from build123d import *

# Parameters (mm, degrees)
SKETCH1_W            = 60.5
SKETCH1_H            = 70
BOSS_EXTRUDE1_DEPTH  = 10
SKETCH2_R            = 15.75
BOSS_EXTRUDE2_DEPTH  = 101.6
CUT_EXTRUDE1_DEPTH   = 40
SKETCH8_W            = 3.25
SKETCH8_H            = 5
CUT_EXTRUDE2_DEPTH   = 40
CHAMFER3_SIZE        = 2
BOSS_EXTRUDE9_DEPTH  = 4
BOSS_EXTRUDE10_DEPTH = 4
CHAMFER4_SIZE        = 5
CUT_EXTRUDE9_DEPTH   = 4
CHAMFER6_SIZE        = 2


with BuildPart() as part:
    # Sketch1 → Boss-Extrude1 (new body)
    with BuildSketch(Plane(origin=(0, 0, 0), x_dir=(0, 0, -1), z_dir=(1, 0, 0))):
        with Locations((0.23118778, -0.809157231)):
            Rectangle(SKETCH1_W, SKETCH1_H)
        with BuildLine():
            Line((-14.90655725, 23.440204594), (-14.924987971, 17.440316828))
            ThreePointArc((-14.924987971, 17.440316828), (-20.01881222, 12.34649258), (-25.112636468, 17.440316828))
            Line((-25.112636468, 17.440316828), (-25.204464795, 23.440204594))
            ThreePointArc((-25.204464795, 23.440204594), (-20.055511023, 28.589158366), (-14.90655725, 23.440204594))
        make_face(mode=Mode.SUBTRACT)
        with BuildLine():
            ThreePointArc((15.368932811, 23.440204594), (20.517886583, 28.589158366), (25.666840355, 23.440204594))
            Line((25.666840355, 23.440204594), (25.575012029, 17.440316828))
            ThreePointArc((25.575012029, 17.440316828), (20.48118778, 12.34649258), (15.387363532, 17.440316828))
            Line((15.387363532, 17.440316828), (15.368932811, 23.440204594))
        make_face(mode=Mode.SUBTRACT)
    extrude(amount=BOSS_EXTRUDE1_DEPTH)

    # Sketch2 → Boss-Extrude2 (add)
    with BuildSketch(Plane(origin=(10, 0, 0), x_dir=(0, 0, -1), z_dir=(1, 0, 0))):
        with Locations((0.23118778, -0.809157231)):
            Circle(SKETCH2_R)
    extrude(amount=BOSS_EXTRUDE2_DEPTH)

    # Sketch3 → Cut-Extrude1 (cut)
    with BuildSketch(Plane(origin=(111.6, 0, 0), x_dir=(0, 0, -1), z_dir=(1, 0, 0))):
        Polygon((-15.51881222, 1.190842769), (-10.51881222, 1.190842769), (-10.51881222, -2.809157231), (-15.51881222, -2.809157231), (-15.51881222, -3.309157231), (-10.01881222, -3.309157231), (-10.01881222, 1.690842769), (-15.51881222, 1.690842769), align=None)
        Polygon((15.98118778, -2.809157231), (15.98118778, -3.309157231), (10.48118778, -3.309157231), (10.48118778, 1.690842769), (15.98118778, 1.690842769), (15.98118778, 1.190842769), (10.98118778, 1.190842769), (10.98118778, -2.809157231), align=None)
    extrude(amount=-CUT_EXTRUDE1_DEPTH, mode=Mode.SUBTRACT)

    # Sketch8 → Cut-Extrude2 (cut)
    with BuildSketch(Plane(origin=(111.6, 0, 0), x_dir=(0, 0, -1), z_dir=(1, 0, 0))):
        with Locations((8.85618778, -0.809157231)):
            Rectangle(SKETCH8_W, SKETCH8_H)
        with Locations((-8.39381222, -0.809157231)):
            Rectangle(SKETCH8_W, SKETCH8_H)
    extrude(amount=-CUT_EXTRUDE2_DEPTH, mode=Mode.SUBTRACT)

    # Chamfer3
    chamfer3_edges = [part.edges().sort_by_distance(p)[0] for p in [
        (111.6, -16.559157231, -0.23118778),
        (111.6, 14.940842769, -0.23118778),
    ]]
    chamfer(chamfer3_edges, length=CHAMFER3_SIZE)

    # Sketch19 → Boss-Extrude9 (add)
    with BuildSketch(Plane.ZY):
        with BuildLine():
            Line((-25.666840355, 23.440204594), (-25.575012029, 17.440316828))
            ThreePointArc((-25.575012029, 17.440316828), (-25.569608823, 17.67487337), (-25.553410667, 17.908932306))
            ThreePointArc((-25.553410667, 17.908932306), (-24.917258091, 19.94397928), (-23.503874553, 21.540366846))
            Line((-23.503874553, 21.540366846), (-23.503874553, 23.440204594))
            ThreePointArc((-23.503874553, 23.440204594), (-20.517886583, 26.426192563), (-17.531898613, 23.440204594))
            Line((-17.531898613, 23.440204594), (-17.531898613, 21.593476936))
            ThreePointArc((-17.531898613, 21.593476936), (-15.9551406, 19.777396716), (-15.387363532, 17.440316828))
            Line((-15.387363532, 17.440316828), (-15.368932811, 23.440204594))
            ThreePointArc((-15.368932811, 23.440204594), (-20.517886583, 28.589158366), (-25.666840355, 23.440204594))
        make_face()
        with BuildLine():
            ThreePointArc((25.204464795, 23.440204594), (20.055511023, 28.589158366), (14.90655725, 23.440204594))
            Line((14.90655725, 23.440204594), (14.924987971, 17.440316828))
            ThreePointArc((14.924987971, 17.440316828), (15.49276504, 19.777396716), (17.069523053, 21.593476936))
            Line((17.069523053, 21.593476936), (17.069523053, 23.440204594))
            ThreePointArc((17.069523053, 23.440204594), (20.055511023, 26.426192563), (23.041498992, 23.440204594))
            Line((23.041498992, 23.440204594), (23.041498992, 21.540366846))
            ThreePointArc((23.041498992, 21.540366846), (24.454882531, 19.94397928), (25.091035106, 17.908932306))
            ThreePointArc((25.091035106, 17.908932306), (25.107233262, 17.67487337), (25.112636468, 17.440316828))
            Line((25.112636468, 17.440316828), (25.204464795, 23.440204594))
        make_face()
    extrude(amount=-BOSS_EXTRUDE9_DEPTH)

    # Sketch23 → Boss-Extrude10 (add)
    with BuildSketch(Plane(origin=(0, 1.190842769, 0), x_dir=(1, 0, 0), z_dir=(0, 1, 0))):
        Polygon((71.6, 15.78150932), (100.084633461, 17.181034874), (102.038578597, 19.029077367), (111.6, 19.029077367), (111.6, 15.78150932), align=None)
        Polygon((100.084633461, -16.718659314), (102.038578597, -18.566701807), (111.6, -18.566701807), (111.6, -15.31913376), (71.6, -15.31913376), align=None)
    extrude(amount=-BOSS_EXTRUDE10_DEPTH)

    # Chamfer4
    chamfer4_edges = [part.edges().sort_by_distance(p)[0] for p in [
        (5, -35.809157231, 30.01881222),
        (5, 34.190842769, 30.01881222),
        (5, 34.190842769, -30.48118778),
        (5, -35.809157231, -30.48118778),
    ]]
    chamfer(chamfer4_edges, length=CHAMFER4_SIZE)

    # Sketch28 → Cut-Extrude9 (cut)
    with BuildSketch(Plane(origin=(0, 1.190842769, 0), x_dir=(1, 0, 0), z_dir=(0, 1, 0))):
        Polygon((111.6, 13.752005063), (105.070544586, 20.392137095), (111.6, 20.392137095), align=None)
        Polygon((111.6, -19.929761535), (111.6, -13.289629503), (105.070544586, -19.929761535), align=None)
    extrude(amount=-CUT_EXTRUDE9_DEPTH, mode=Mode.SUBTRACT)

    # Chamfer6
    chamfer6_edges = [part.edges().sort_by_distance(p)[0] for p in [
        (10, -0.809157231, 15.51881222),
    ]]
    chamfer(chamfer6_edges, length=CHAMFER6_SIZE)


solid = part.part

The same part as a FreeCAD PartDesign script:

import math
import FreeCAD as App
import Part
import Sketcher

V = App.Vector
Q = App.Units.Quantity


def edges_at(feature, points):
    """Names of the edges that pass closest to the given points."""
    edges = feature.Shape.Edges
    near = lambda p: min(range(len(edges)), key=lambda i: edges[i].distToShape(Part.Vertex(*p))[0])
    return sorted({f"Edge{near(p) + 1}" for p in points})

doc = App.newDocument("Part")
body = doc.addObject("PartDesign::Body", "Body")

sketch1 = body.newObject("Sketcher::SketchObject", "Sketch")
sketch1.AttachmentSupport = (doc.getObject("YZ_Plane"), [""])
sketch1.MapMode = "FlatFace"
sketch1.addGeometry(Part.LineSegment(V(34.190843, 30.018812, 0), V(-35.809157, 30.018812, 0)), False)
sketch1.addGeometry(Part.LineSegment(V(-35.809157, 30.018812, 0), V(-35.809157, -30.481188, 0)), False)
sketch1.addGeometry(Part.LineSegment(V(-35.809157, -30.481188, 0), V(34.190843, -30.481188, 0)), False)
sketch1.addGeometry(Part.LineSegment(V(34.190843, -30.481188, 0), V(34.190843, 30.018812, 0)), False)
sketch1.addGeometry(Part.ArcOfCircle(Part.Circle(V(23.440205, 20.055511, 0), V(0, 0, 1), 5.148954), math.radians(-90), math.radians(90)), False)
sketch1.addGeometry(Part.LineSegment(V(23.440205, 14.906557, 0), V(17.440317, 14.924988, 0)), False)
sketch1.addGeometry(Part.ArcOfCircle(Part.Circle(V(17.440317, 20.018812, 0), V(0, 0, 1), 5.093824), math.radians(90), math.radians(270)), False)
sketch1.addGeometry(Part.LineSegment(V(17.440317, 25.112636, 0), V(23.440205, 25.204465, 0)), False)
sketch1.addGeometry(Part.LineSegment(V(17.440317, -15.387364, 0), V(23.440205, -15.368933, 0)), False)
sketch1.addGeometry(Part.ArcOfCircle(Part.Circle(V(23.440205, -20.517887, 0), V(0, 0, 1), 5.148954), math.radians(-90), math.radians(90)), False)
sketch1.addGeometry(Part.LineSegment(V(23.440205, -25.66684, 0), V(17.440317, -25.575012, 0)), False)
sketch1.addGeometry(Part.ArcOfCircle(Part.Circle(V(17.440317, -20.481188, 0), V(0, 0, 1), 5.093824), math.radians(90), math.radians(270)), False)
sketch1.addConstraint(Sketcher.Constraint("Coincident", 0, 2, 1, 1))
sketch1.addConstraint(Sketcher.Constraint("Coincident", 1, 2, 2, 1))
sketch1.addConstraint(Sketcher.Constraint("Coincident", 2, 2, 3, 1))
sketch1.addConstraint(Sketcher.Constraint("Coincident", 3, 2, 0, 1))
sketch1.addConstraint(Sketcher.Constraint("Coincident", 4, 1, 5, 1))
sketch1.addConstraint(Sketcher.Constraint("Coincident", 5, 2, 6, 2))
sketch1.addConstraint(Sketcher.Constraint("Coincident", 6, 1, 7, 1))
sketch1.addConstraint(Sketcher.Constraint("Coincident", 7, 2, 4, 2))
sketch1.addConstraint(Sketcher.Constraint("Coincident", 8, 2, 9, 2))
sketch1.addConstraint(Sketcher.Constraint("Coincident", 9, 1, 10, 1))
sketch1.addConstraint(Sketcher.Constraint("Coincident", 10, 2, 11, 2))
sketch1.addConstraint(Sketcher.Constraint("Coincident", 11, 1, 8, 1))
sketch1.addConstraint(Sketcher.Constraint("Horizontal", 0))
sketch1.addConstraint(Sketcher.Constraint("Vertical", 1))
sketch1.addConstraint(Sketcher.Constraint("Horizontal", 2))
sketch1.addConstraint(Sketcher.Constraint("Vertical", 3))
sketch1.addConstraint(Sketcher.Constraint("Equal", 4, 9))
sketch1.addConstraint(Sketcher.Constraint("Equal", 6, 11))
sketch1.addConstraint(Sketcher.Constraint("Vertical", 4, 3, 9, 3))
sketch1.addConstraint(Sketcher.Constraint("Vertical", 6, 3, 11, 3))
sketch1.addConstraint(Sketcher.Constraint("Vertical", 9, 3, 4, 1))
sketch1.addConstraint(Sketcher.Constraint("Vertical", 11, 3, 5, 2))
sketch1.addConstraint(Sketcher.Constraint("Vertical", 5, 2, 6, 1))
sketch1.addConstraint(Sketcher.Constraint("Vertical", 4, 1, 7, 2))
sketch1.addConstraint(Sketcher.Constraint("Vertical", 7, 2, 8, 2))
sketch1.addConstraint(Sketcher.Constraint("Vertical", 8, 2, 9, 1))
sketch1.addConstraint(Sketcher.Constraint("Vertical", 6, 1, 10, 2))
sketch1.addConstraint(Sketcher.Constraint("Vertical", 10, 2, 11, 1))
sketch1.addConstraint(Sketcher.Constraint("Equal", 7, 10))
sketch1.addConstraint(Sketcher.Constraint("DistanceX", 0, 2, 0, 1, Q("70 mm")))
sketch1.addConstraint(Sketcher.Constraint("DistanceY", 1, 2, 1, 1, Q("60.5 mm")))
sketch1.addConstraint(Sketcher.Constraint("DistanceY", 6, 3, 0, 2, Q("10 mm")))
sketch1.addConstraint(Sketcher.Constraint("DistanceY", 1, 2, 11, 3, Q("10 mm")))
sketch1.addConstraint(Sketcher.Constraint("Radius", 4, Q("5.148954 mm")))
sketch1.addConstraint(Sketcher.Constraint("Radius", 6, Q("5.093824 mm")))
sketch1.addConstraint(Sketcher.Constraint("DistanceY", 6, 3, 4, 3, Q("0.036699 mm")))
sketch1.addConstraint(Sketcher.Constraint("Distance", 7, Q("6.00059 mm")))
sketch1.addConstraint(Sketcher.Constraint("DistanceY", -1, 1, 4, 3, Q("20.055511 mm")))
sketch1.addConstraint(Sketcher.Constraint("DistanceX", 0, 2, 4, 3, Q("59.249362 mm")))
sketch1.addConstraint(Sketcher.Constraint("DistanceX", -1, 1, 4, 3, Q("23.440205 mm")))
pad1 = body.newObject("PartDesign::Pad", "Pad")
pad1.Profile = sketch1
pad1.Length = 10

sketch2 = body.newObject("Sketcher::SketchObject", "Sketch001")
sketch2.AttachmentSupport = (doc.getObject("YZ_Plane"), [""])
sketch2.MapMode = "FlatFace"
sketch2.AttachmentOffset = App.Placement(V(0, 0, 10), App.Rotation())
sketch2.addGeometry(Part.Circle(V(-0.809157, -0.231188, 0), V(0, 0, 1), 15.75), False)
sketch2.addConstraint(Sketcher.Constraint("Diameter", 0, Q("31.5 mm")))
sketch2.addConstraint(Sketcher.Constraint("DistanceX", 0, 3, -1, 1, Q("0.809157 mm")))
sketch2.addConstraint(Sketcher.Constraint("DistanceY", 0, 3, -1, 1, Q("0.231188 mm")))
pad2 = body.newObject("PartDesign::Pad", "Pad001")
pad2.Profile = sketch2
pad2.Length = 101.6

sketch3 = body.newObject("Sketcher::SketchObject", "Sketch002")
sketch3.AttachmentSupport = (doc.getObject("YZ_Plane"), [""])
sketch3.MapMode = "FlatFace"
sketch3.AttachmentOffset = App.Placement(V(0, 0, 111.6), App.Rotation())
sketch3.addGeometry(Part.LineSegment(V(1.190843, 15.518812, 0), V(1.190843, 10.518812, 0)), False)
sketch3.addGeometry(Part.LineSegment(V(1.190843, 10.518812, 0), V(-2.809157, 10.518812, 0)), False)
sketch3.addGeometry(Part.LineSegment(V(-2.809157, 10.518812, 0), V(-2.809157, 15.518812, 0)), False)
sketch3.addGeometry(Part.LineSegment(V(-2.809157, 15.518812, 0), V(-3.309157, 15.518812, 0)), False)
sketch3.addGeometry(Part.LineSegment(V(-3.309157, 15.518812, 0), V(-3.309157, 10.018812, 0)), False)
sketch3.addGeometry(Part.LineSegment(V(-3.309157, 10.018812, 0), V(1.690843, 10.018812, 0)), False)
sketch3.addGeometry(Part.LineSegment(V(1.690843, 10.018812, 0), V(1.690843, 15.518812, 0)), False)
sketch3.addGeometry(Part.LineSegment(V(1.690843, 15.518812, 0), V(1.190843, 15.518812, 0)), False)
sketch3.addGeometry(Part.LineSegment(V(-3.309157, -15.981188, 0), V(-2.809157, -15.981188, 0)), False)
sketch3.addGeometry(Part.LineSegment(V(-2.809157, -15.981188, 0), V(-2.809157, -10.981188, 0)), False)
sketch3.addGeometry(Part.LineSegment(V(-2.809157, -10.981188, 0), V(1.190843, -10.981188, 0)), False)
sketch3.addGeometry(Part.LineSegment(V(1.190843, -10.981188, 0), V(1.190843, -15.981188, 0)), False)
sketch3.addGeometry(Part.LineSegment(V(1.190843, -15.981188, 0), V(1.690843, -15.981188, 0)), False)
sketch3.addGeometry(Part.LineSegment(V(1.690843, -15.981188, 0), V(1.690843, -10.481188, 0)), False)
sketch3.addGeometry(Part.LineSegment(V(1.690843, -10.481188, 0), V(-3.309157, -10.481188, 0)), False)
sketch3.addGeometry(Part.LineSegment(V(-3.309157, -10.481188, 0), V(-3.309157, -15.981188, 0)), False)
sketch3.addConstraint(Sketcher.Constraint("Coincident", 0, 2, 1, 1))
sketch3.addConstraint(Sketcher.Constraint("Coincident", 1, 2, 2, 1))
sketch3.addConstraint(Sketcher.Constraint("Coincident", 2, 2, 3, 1))
sketch3.addConstraint(Sketcher.Constraint("Coincident", 3, 2, 4, 1))
sketch3.addConstraint(Sketcher.Constraint("Coincident", 4, 2, 5, 1))
sketch3.addConstraint(Sketcher.Constraint("Coincident", 5, 2, 6, 1))
sketch3.addConstraint(Sketcher.Constraint("Coincident", 6, 2, 7, 1))
sketch3.addConstraint(Sketcher.Constraint("Coincident", 7, 2, 0, 1))
sketch3.addConstraint(Sketcher.Constraint("Coincident", 8, 2, 9, 1))
sketch3.addConstraint(Sketcher.Constraint("Coincident", 9, 2, 10, 1))
sketch3.addConstraint(Sketcher.Constraint("Coincident", 10, 2, 11, 1))
sketch3.addConstraint(Sketcher.Constraint("Coincident", 11, 2, 12, 1))
sketch3.addConstraint(Sketcher.Constraint("Coincident", 12, 2, 13, 1))
sketch3.addConstraint(Sketcher.Constraint("Coincident", 13, 2, 14, 1))
sketch3.addConstraint(Sketcher.Constraint("Coincident", 14, 2, 15, 1))
sketch3.addConstraint(Sketcher.Constraint("Coincident", 15, 2, 8, 1))
sketch3.addConstraint(Sketcher.Constraint("Vertical", 0))
sketch3.addConstraint(Sketcher.Constraint("Horizontal", 1))
sketch3.addConstraint(Sketcher.Constraint("Vertical", 2))
sketch3.addConstraint(Sketcher.Constraint("Horizontal", 3))
sketch3.addConstraint(Sketcher.Constraint("Vertical", 4))
sketch3.addConstraint(Sketcher.Constraint("Horizontal", 5))
sketch3.addConstraint(Sketcher.Constraint("Vertical", 6))
sketch3.addConstraint(Sketcher.Constraint("Horizontal", 7))
sketch3.addConstraint(Sketcher.Constraint("Horizontal", 8))
sketch3.addConstraint(Sketcher.Constraint("Vertical", 9))
sketch3.addConstraint(Sketcher.Constraint("Horizontal", 10))
sketch3.addConstraint(Sketcher.Constraint("Vertical", 11))
sketch3.addConstraint(Sketcher.Constraint("Horizontal", 12))
sketch3.addConstraint(Sketcher.Constraint("Vertical", 13))
sketch3.addConstraint(Sketcher.Constraint("Horizontal", 14))
sketch3.addConstraint(Sketcher.Constraint("Vertical", 15))
sketch3.addConstraint(Sketcher.Constraint("Horizontal", 3, 2, 6, 2))
sketch3.addConstraint(Sketcher.Constraint("Horizontal", 8, 2, 11, 2))
sketch3.addConstraint(Sketcher.Constraint("Vertical", 2, 2, 8, 2))
sketch3.addConstraint(Sketcher.Constraint("Vertical", 7, 2, 10, 2))
sketch3.addConstraint(Sketcher.Constraint("Vertical", 6, 2, 12, 2))
sketch3.addConstraint(Sketcher.Constraint("Vertical", 4, 2, 14, 2))
sketch3.addConstraint(Sketcher.Constraint("Equal", 3, 7))
sketch3.addConstraint(Sketcher.Constraint("Equal", 14, 0))
sketch3.addConstraint(Sketcher.Constraint("Equal", 2, 9))
sketch3.addConstraint(Sketcher.Constraint("Equal", 6, 13))
sketch3.addConstraint(Sketcher.Constraint("DistanceX", 1, 2, 1, 1, Q("4 mm")))
sketch3.addConstraint(Sketcher.Constraint("DistanceX", 5, 1, 5, 2, Q("5 mm")))
sketch3.addConstraint(Sketcher.Constraint("DistanceY", 4, 2, 4, 1, Q("5.5 mm")))
sketch3.addConstraint(Sketcher.Constraint("DistanceY", 8, 2, 4, 2, Q("26 mm")))
sketch3.addConstraint(Sketcher.Constraint("DistanceX", -1, 1, 0, 2, Q("1.190843 mm")))
sketch3.addConstraint(Sketcher.Constraint("DistanceY", -1, 1, 0, 2, Q("10.518812 mm")))
pocket1 = body.newObject("PartDesign::Pocket", "Pocket")
pocket1.Profile = sketch3
pocket1.Length = 40

sketch4 = body.newObject("Sketcher::SketchObject", "Sketch003")
sketch4.AttachmentSupport = (doc.getObject("YZ_Plane"), [""])
sketch4.MapMode = "FlatFace"
sketch4.AttachmentOffset = App.Placement(V(0, 0, 111.6), App.Rotation())
sketch4.addGeometry(Part.LineSegment(V(1.690843, -7.231188, 0), V(-3.309157, -7.231188, 0)), False)
sketch4.addGeometry(Part.LineSegment(V(-3.309157, -7.231188, 0), V(-3.309157, -10.481188, 0)), False)
sketch4.addGeometry(Part.LineSegment(V(-3.309157, -10.481188, 0), V(1.690843, -10.481188, 0)), False)
sketch4.addGeometry(Part.LineSegment(V(1.690843, -10.481188, 0), V(1.690843, -7.231188, 0)), False)
sketch4.addGeometry(Part.LineSegment(V(1.690843, 10.018812, 0), V(-3.309157, 10.018812, 0)), False)
sketch4.addGeometry(Part.LineSegment(V(-3.309157, 10.018812, 0), V(-3.309157, 6.768812, 0)), False)
sketch4.addGeometry(Part.LineSegment(V(-3.309157, 6.768812, 0), V(1.690843, 6.768812, 0)), False)
sketch4.addGeometry(Part.LineSegment(V(1.690843, 6.768812, 0), V(1.690843, 10.018812, 0)), False)
sketch4.addConstraint(Sketcher.Constraint("Coincident", 0, 2, 1, 1))
sketch4.addConstraint(Sketcher.Constraint("Coincident", 1, 2, 2, 1))
sketch4.addConstraint(Sketcher.Constraint("Coincident", 2, 2, 3, 1))
sketch4.addConstraint(Sketcher.Constraint("Coincident", 3, 2, 0, 1))
sketch4.addConstraint(Sketcher.Constraint("Coincident", 4, 2, 5, 1))
sketch4.addConstraint(Sketcher.Constraint("Coincident", 5, 2, 6, 1))
sketch4.addConstraint(Sketcher.Constraint("Coincident", 6, 2, 7, 1))
sketch4.addConstraint(Sketcher.Constraint("Coincident", 7, 2, 4, 1))
sketch4.addConstraint(Sketcher.Constraint("Horizontal", 0))
sketch4.addConstraint(Sketcher.Constraint("Vertical", 1))
sketch4.addConstraint(Sketcher.Constraint("Horizontal", 2))
sketch4.addConstraint(Sketcher.Constraint("Vertical", 3))
sketch4.addConstraint(Sketcher.Constraint("Horizontal", 4))
sketch4.addConstraint(Sketcher.Constraint("Vertical", 5))
sketch4.addConstraint(Sketcher.Constraint("Horizontal", 6))
sketch4.addConstraint(Sketcher.Constraint("Vertical", 7))
sketch4.addConstraint(Sketcher.Constraint("Vertical", 1, 2, 4, 2))
sketch4.addConstraint(Sketcher.Constraint("Vertical", 3, 2, 6, 2))
sketch4.addConstraint(Sketcher.Constraint("Equal", 3, 5))
sketch4.addConstraint(Sketcher.Constraint("DistanceX", 0, 2, 0, 1, Q("5 mm")))
sketch4.addConstraint(Sketcher.Constraint("DistanceY", 0, 2, 5, 2, Q("14 mm")))
sketch4.addConstraint(Sketcher.Constraint("DistanceY", 1, 2, 1, 1, Q("3.25 mm")))
sketch4.addConstraint(Sketcher.Constraint("DistanceX", 0, 2, -1, 1, Q("3.309157 mm")))
sketch4.addConstraint(Sketcher.Constraint("DistanceY", 0, 2, -1, 1, Q("7.231188 mm")))
pocket2 = body.newObject("PartDesign::Pocket", "Pocket001")
pocket2.Profile = sketch4
pocket2.Length = 40
doc.recompute()

chamfer = body.newObject("PartDesign::Chamfer", "Chamfer")
chamfer.Base = (pocket2, edges_at(pocket2, [(111.6, -16.559, -0.231), (111.6, 14.941, -0.231)]))
chamfer.Size = 2

sketch5 = body.newObject("Sketcher::SketchObject", "Sketch004")
sketch5.AttachmentSupport = (doc.getObject("YZ_Plane"), [""])
sketch5.MapMode = "FlatFace"
sketch5.addGeometry(Part.LineSegment(V(23.440205, -25.66684, 0), V(17.440317, -25.575012, 0)), False)
sketch5.addGeometry(Part.ArcOfCircle(Part.Circle(V(17.440317, -20.481188, 0), V(0, 0, 1), 5.093824), math.radians(-90), math.radians(-84.721509)), False)
sketch5.addGeometry(Part.ArcOfCircle(Part.Circle(V(17.440317, -20.481188, 0), V(0, 0, 1), 5.093824), math.radians(-84.721509), math.radians(-36.398816)), False)
sketch5.addGeometry(Part.LineSegment(V(21.540367, -23.503875, 0), V(23.440205, -23.503875, 0)), False)
sketch5.addGeometry(Part.ArcOfCircle(Part.Circle(V(23.440205, -20.517887, 0), V(0, 0, 1), 2.985988), math.radians(-90), math.radians(90)), False)
sketch5.addGeometry(Part.LineSegment(V(23.440205, -17.531899, 0), V(21.593477, -17.531899, 0)), False)
sketch5.addGeometry(Part.ArcOfCircle(Part.Circle(V(17.440317, -20.481188, 0), V(0, 0, 1), 5.093824), math.radians(35.379755), math.radians(90)), False)
sketch5.addGeometry(Part.LineSegment(V(17.440317, -15.387364, 0), V(23.440205, -15.368933, 0)), False)
sketch5.addGeometry(Part.ArcOfCircle(Part.Circle(V(23.440205, -20.517887, 0), V(0, 0, 1), 5.148954), math.radians(-90), math.radians(90)), False)
sketch5.addGeometry(Part.ArcOfCircle(Part.Circle(V(23.440205, 20.055511, 0), V(0, 0, 1), 5.148954), math.radians(-90), math.radians(90)), False)
sketch5.addGeometry(Part.LineSegment(V(23.440205, 14.906557, 0), V(17.440317, 14.924988, 0)), False)
sketch5.addGeometry(Part.ArcOfCircle(Part.Circle(V(17.440317, 20.018812, 0), V(0, 0, 1), 5.093824), math.radians(-90), math.radians(-35.379755)), False)
sketch5.addGeometry(Part.LineSegment(V(21.593477, 17.069523, 0), V(23.440205, 17.069523, 0)), False)
sketch5.addGeometry(Part.ArcOfCircle(Part.Circle(V(23.440205, 20.055511, 0), V(0, 0, 1), 2.985988), math.radians(-90), math.radians(90)), False)
sketch5.addGeometry(Part.LineSegment(V(23.440205, 23.041499, 0), V(21.540367, 23.041499, 0)), False)
sketch5.addGeometry(Part.ArcOfCircle(Part.Circle(V(17.440317, 20.018812, 0), V(0, 0, 1), 5.093824), math.radians(36.398816), math.radians(84.721509)), False)
sketch5.addGeometry(Part.ArcOfCircle(Part.Circle(V(17.440317, 20.018812, 0), V(0, 0, 1), 5.093824), math.radians(84.721509), math.radians(90)), False)
sketch5.addGeometry(Part.LineSegment(V(17.440317, 25.112636, 0), V(23.440205, 25.204465, 0)), False)
sketch5.addConstraint(Sketcher.Constraint("Coincident", 0, 2, 1, 1))
sketch5.addConstraint(Sketcher.Constraint("Tangent", 1, 2, 2, 1))
sketch5.addConstraint(Sketcher.Constraint("Coincident", 2, 2, 3, 1))
sketch5.addConstraint(Sketcher.Constraint("Tangent", 3, 2, 4, 1))
sketch5.addConstraint(Sketcher.Constraint("Tangent", 4, 2, 5, 1))
sketch5.addConstraint(Sketcher.Constraint("Coincident", 5, 2, 6, 1))
sketch5.addConstraint(Sketcher.Constraint("Coincident", 6, 2, 7, 1))
sketch5.addConstraint(Sketcher.Constraint("Coincident", 7, 2, 8, 2))
sketch5.addConstraint(Sketcher.Constraint("Coincident", 8, 1, 0, 1))
sketch5.addConstraint(Sketcher.Constraint("Coincident", 9, 1, 10, 1))
sketch5.addConstraint(Sketcher.Constraint("Coincident", 10, 2, 11, 1))
sketch5.addConstraint(Sketcher.Constraint("Coincident", 11, 2, 12, 1))
sketch5.addConstraint(Sketcher.Constraint("Tangent", 12, 2, 13, 1))
sketch5.addConstraint(Sketcher.Constraint("Tangent", 13, 2, 14, 1))
sketch5.addConstraint(Sketcher.Constraint("Coincident", 14, 2, 15, 1))
sketch5.addConstraint(Sketcher.Constraint("Tangent", 15, 2, 16, 1))
sketch5.addConstraint(Sketcher.Constraint("Coincident", 16, 2, 17, 1))
sketch5.addConstraint(Sketcher.Constraint("Coincident", 17, 2, 9, 2))
sketch5.addConstraint(Sketcher.Constraint("Horizontal", 3))
sketch5.addConstraint(Sketcher.Constraint("Horizontal", 5))
sketch5.addConstraint(Sketcher.Constraint("Horizontal", 12))
sketch5.addConstraint(Sketcher.Constraint("Horizontal", 14))
sketch5.addConstraint(Sketcher.Constraint("Coincident", 6, 3, 1, 3))
sketch5.addConstraint(Sketcher.Constraint("Coincident", 8, 3, 4, 3))
sketch5.addConstraint(Sketcher.Constraint("Coincident", 13, 3, 9, 3))
sketch5.addConstraint(Sketcher.Constraint("Coincident", 15, 3, 11, 3))
sketch5.addConstraint(Sketcher.Constraint("Equal", 1, 2))
sketch5.addConstraint(Sketcher.Constraint("Equal", 2, 6))
sketch5.addConstraint(Sketcher.Constraint("Equal", 8, 9))
sketch5.addConstraint(Sketcher.Constraint("Equal", 6, 11))
sketch5.addConstraint(Sketcher.Constraint("Equal", 4, 13))
sketch5.addConstraint(Sketcher.Constraint("Equal", 11, 15))
sketch5.addConstraint(Sketcher.Constraint("Equal", 15, 16))
sketch5.addConstraint(Sketcher.Constraint("Vertical", 8, 3, 9, 3))
sketch5.addConstraint(Sketcher.Constraint("Vertical", 6, 3, 11, 3))
sketch5.addConstraint(Sketcher.Constraint("Vertical", 16, 3, 0, 2))
sketch5.addConstraint(Sketcher.Constraint("Vertical", 0, 2, 6, 2))
sketch5.addConstraint(Sketcher.Constraint("Vertical", 4, 2, 7, 2))
sketch5.addConstraint(Sketcher.Constraint("Vertical", 7, 2, 8, 1))
sketch5.addConstraint(Sketcher.Constraint("Vertical", 8, 1, 9, 1))
sketch5.addConstraint(Sketcher.Constraint("Vertical", 6, 2, 10, 2))
sketch5.addConstraint(Sketcher.Constraint("Vertical", 5, 2, 11, 2))
sketch5.addConstraint(Sketcher.Constraint("Vertical", 1, 2, 15, 2))
sketch5.addConstraint(Sketcher.Constraint("Vertical", 10, 2, 16, 2))
sketch5.addConstraint(Sketcher.Constraint("Vertical", 13, 2, 17, 2))
sketch5.addConstraint(Sketcher.Constraint("DistanceY", 6, 3, 11, 3, Q("40.5 mm")))
sketch5.addConstraint(Sketcher.Constraint("Radius", 1, Q("5.093824 mm")))
sketch5.addConstraint(Sketcher.Constraint("Radius", 4, Q("2.985988 mm")))
sketch5.addConstraint(Sketcher.Constraint("Radius", 8, Q("5.148954 mm")))
sketch5.addConstraint(Sketcher.Constraint("DistanceY", 4, 2, -1, 1, Q("17.531899 mm")))
sketch5.addConstraint(Sketcher.Constraint("DistanceY", -1, 1, 13, 2, Q("23.041499 mm")))
sketch5.addConstraint(Sketcher.Constraint("DistanceY", 0, 2, 1, 2, Q("0.021601 mm")))
sketch5.addConstraint(Sketcher.Constraint("Distance", 0, Q("6.00059 mm")))
sketch5.addConstraint(Sketcher.Constraint("DistanceX", -1, 1, 1, 3, Q("17.440317 mm")))
pad3 = body.newObject("PartDesign::Pad", "Pad002")
pad3.Profile = sketch5
pad3.Length = 4

sketch6 = body.newObject("Sketcher::SketchObject", "Sketch005")
sketch6.AttachmentSupport = (doc.getObject("XZ_Plane"), [""])
sketch6.MapMode = "FlatFace"
sketch6.AttachmentOffset = App.Placement(V(0, 0, -1.190843), App.Rotation())
sketch6.addGeometry(Part.LineSegment(V(100.084633, -17.181035, 0), V(71.6, -15.781509, 0)), False)
sketch6.addGeometry(Part.LineSegment(V(71.6, -15.781509, 0), V(111.6, -15.781509, 0)), False)
sketch6.addGeometry(Part.LineSegment(V(111.6, -15.781509, 0), V(111.6, -19.029077, 0)), False)
sketch6.addGeometry(Part.LineSegment(V(111.6, -19.029077, 0), V(102.038579, -19.029077, 0)), False)
sketch6.addGeometry(Part.LineSegment(V(102.038579, -19.029077, 0), V(100.084633, -17.181035, 0)), False)
sketch6.addGeometry(Part.LineSegment(V(100.084633, 16.718659, 0), V(102.038579, 18.566702, 0)), False)
sketch6.addGeometry(Part.LineSegment(V(102.038579, 18.566702, 0), V(111.6, 18.566702, 0)), False)
sketch6.addGeometry(Part.LineSegment(V(111.6, 18.566702, 0), V(111.6, 15.319134, 0)), False)
sketch6.addGeometry(Part.LineSegment(V(111.6, 15.319134, 0), V(71.6, 15.319134, 0)), False)
sketch6.addGeometry(Part.LineSegment(V(71.6, 15.319134, 0), V(100.084633, 16.718659, 0)), False)
sketch6.addConstraint(Sketcher.Constraint("Coincident", 0, 2, 1, 1))
sketch6.addConstraint(Sketcher.Constraint("Coincident", 1, 2, 2, 1))
sketch6.addConstraint(Sketcher.Constraint("Coincident", 2, 2, 3, 1))
sketch6.addConstraint(Sketcher.Constraint("Coincident", 3, 2, 4, 1))
sketch6.addConstraint(Sketcher.Constraint("Coincident", 4, 2, 0, 1))
sketch6.addConstraint(Sketcher.Constraint("Coincident", 5, 2, 6, 1))
sketch6.addConstraint(Sketcher.Constraint("Coincident", 6, 2, 7, 1))
sketch6.addConstraint(Sketcher.Constraint("Coincident", 7, 2, 8, 1))
sketch6.addConstraint(Sketcher.Constraint("Coincident", 8, 2, 9, 1))
sketch6.addConstraint(Sketcher.Constraint("Coincident", 9, 2, 5, 1))
sketch6.addConstraint(Sketcher.Constraint("Horizontal", 1))
sketch6.addConstraint(Sketcher.Constraint("Vertical", 2))
sketch6.addConstraint(Sketcher.Constraint("Horizontal", 3))
sketch6.addConstraint(Sketcher.Constraint("Horizontal", 6))
sketch6.addConstraint(Sketcher.Constraint("Vertical", 7))
sketch6.addConstraint(Sketcher.Constraint("Horizontal", 8))
sketch6.addConstraint(Sketcher.Constraint("Vertical", 3, 2, 5, 2))
sketch6.addConstraint(Sketcher.Constraint("Vertical", 2, 2, 6, 2))
sketch6.addConstraint(Sketcher.Constraint("Vertical", 0, 2, 8, 2))
sketch6.addConstraint(Sketcher.Constraint("Vertical", 4, 2, 9, 2))
sketch6.addConstraint(Sketcher.Constraint("Equal", 2, 7))
sketch6.addConstraint(Sketcher.Constraint("Equal", 4, 5))
sketch6.addConstraint(Sketcher.Constraint("DistanceX", 1, 1, 1, 2, Q("40 mm")))
sketch6.addConstraint(Sketcher.Constraint("DistanceX", -1, 1, 0, 2, Q("71.6 mm")))
sketch6.addConstraint(Sketcher.Constraint("DistanceX", 3, 2, 3, 1, Q("9.561421 mm")))
sketch6.addConstraint(Sketcher.Constraint("DistanceY", 2, 2, 2, 1, Q("3.247568 mm")))
sketch6.addConstraint(Sketcher.Constraint("DistanceY", -1, 1, 5, 2, Q("18.566702 mm")))
sketch6.addConstraint(Sketcher.Constraint("DistanceY", 0, 2, -1, 1, Q("15.781509 mm")))
sketch6.addConstraint(Sketcher.Constraint("DistanceY", -1, 1, 9, 2, Q("16.718659 mm")))
sketch6.addConstraint(Sketcher.Constraint("Distance", 0, Q("28.518994 mm")))
pad4 = body.newObject("PartDesign::Pad", "Pad003")
pad4.Profile = sketch6
pad4.Length = 4
doc.recompute()

chamfer2 = body.newObject("PartDesign::Chamfer", "Chamfer001")
chamfer2.Base = (pad4, edges_at(pad4, [
    (5, -35.809, 30.019),
    (5, 34.191, 30.019),
    (5, 34.191, -30.481),
    (5, -35.809, -30.481),
]))
chamfer2.Size = 5

sketch7 = body.newObject("Sketcher::SketchObject", "Sketch006")
sketch7.AttachmentSupport = (doc.getObject("XZ_Plane"), [""])
sketch7.MapMode = "FlatFace"
sketch7.AttachmentOffset = App.Placement(V(0, 0, -1.190843), App.Rotation())
sketch7.addGeometry(Part.LineSegment(V(105.070545, -20.392137, 0), V(111.6, -13.752005, 0)), False)
sketch7.addGeometry(Part.LineSegment(V(111.6, -13.752005, 0), V(111.6, -20.392137, 0)), False)
sketch7.addGeometry(Part.LineSegment(V(111.6, -20.392137, 0), V(105.070545, -20.392137, 0)), False)
sketch7.addGeometry(Part.LineSegment(V(111.6, 19.929762, 0), V(111.6, 13.28963, 0)), False)
sketch7.addGeometry(Part.LineSegment(V(111.6, 13.28963, 0), V(105.070545, 19.929762, 0)), False)
sketch7.addGeometry(Part.LineSegment(V(105.070545, 19.929762, 0), V(111.6, 19.929762, 0)), False)
sketch7.addConstraint(Sketcher.Constraint("Coincident", 0, 2, 1, 1))
sketch7.addConstraint(Sketcher.Constraint("Coincident", 1, 2, 2, 1))
sketch7.addConstraint(Sketcher.Constraint("Coincident", 2, 2, 0, 1))
sketch7.addConstraint(Sketcher.Constraint("Coincident", 3, 2, 4, 1))
sketch7.addConstraint(Sketcher.Constraint("Coincident", 4, 2, 5, 1))
sketch7.addConstraint(Sketcher.Constraint("Coincident", 5, 2, 3, 1))
sketch7.addConstraint(Sketcher.Constraint("Vertical", 1))
sketch7.addConstraint(Sketcher.Constraint("Horizontal", 2))
sketch7.addConstraint(Sketcher.Constraint("Vertical", 3))
sketch7.addConstraint(Sketcher.Constraint("Horizontal", 5))
sketch7.addConstraint(Sketcher.Constraint("Vertical", 1, 2, 3, 2))
sketch7.addConstraint(Sketcher.Constraint("Vertical", 2, 2, 4, 2))
sketch7.addConstraint(Sketcher.Constraint("Equal", 1, 3))
sketch7.addConstraint(Sketcher.Constraint("DistanceX", -1, 1, 0, 2, Q("111.6 mm")))
sketch7.addConstraint(Sketcher.Constraint("DistanceY", 2, 2, 4, 2, Q("40.321899 mm")))
sketch7.addConstraint(Sketcher.Constraint("DistanceX", 2, 2, 2, 1, Q("6.529455 mm")))
sketch7.addConstraint(Sketcher.Constraint("DistanceY", 1, 2, 1, 1, Q("6.640132 mm")))
sketch7.addConstraint(Sketcher.Constraint("DistanceY", -1, 1, 3, 2, Q("13.28963 mm")))
pocket3 = body.newObject("PartDesign::Pocket", "Pocket002")
pocket3.Profile = sketch7
pocket3.Length = 4
pocket3.Reversed = True
doc.recompute()

chamfer3 = body.newObject("PartDesign::Chamfer", "Chamfer002")
chamfer3.Base = (pocket3, edges_at(pocket3, [(10, -0.809, 15.519)]))
chamfer3.Size = 2

doc.recompute()
